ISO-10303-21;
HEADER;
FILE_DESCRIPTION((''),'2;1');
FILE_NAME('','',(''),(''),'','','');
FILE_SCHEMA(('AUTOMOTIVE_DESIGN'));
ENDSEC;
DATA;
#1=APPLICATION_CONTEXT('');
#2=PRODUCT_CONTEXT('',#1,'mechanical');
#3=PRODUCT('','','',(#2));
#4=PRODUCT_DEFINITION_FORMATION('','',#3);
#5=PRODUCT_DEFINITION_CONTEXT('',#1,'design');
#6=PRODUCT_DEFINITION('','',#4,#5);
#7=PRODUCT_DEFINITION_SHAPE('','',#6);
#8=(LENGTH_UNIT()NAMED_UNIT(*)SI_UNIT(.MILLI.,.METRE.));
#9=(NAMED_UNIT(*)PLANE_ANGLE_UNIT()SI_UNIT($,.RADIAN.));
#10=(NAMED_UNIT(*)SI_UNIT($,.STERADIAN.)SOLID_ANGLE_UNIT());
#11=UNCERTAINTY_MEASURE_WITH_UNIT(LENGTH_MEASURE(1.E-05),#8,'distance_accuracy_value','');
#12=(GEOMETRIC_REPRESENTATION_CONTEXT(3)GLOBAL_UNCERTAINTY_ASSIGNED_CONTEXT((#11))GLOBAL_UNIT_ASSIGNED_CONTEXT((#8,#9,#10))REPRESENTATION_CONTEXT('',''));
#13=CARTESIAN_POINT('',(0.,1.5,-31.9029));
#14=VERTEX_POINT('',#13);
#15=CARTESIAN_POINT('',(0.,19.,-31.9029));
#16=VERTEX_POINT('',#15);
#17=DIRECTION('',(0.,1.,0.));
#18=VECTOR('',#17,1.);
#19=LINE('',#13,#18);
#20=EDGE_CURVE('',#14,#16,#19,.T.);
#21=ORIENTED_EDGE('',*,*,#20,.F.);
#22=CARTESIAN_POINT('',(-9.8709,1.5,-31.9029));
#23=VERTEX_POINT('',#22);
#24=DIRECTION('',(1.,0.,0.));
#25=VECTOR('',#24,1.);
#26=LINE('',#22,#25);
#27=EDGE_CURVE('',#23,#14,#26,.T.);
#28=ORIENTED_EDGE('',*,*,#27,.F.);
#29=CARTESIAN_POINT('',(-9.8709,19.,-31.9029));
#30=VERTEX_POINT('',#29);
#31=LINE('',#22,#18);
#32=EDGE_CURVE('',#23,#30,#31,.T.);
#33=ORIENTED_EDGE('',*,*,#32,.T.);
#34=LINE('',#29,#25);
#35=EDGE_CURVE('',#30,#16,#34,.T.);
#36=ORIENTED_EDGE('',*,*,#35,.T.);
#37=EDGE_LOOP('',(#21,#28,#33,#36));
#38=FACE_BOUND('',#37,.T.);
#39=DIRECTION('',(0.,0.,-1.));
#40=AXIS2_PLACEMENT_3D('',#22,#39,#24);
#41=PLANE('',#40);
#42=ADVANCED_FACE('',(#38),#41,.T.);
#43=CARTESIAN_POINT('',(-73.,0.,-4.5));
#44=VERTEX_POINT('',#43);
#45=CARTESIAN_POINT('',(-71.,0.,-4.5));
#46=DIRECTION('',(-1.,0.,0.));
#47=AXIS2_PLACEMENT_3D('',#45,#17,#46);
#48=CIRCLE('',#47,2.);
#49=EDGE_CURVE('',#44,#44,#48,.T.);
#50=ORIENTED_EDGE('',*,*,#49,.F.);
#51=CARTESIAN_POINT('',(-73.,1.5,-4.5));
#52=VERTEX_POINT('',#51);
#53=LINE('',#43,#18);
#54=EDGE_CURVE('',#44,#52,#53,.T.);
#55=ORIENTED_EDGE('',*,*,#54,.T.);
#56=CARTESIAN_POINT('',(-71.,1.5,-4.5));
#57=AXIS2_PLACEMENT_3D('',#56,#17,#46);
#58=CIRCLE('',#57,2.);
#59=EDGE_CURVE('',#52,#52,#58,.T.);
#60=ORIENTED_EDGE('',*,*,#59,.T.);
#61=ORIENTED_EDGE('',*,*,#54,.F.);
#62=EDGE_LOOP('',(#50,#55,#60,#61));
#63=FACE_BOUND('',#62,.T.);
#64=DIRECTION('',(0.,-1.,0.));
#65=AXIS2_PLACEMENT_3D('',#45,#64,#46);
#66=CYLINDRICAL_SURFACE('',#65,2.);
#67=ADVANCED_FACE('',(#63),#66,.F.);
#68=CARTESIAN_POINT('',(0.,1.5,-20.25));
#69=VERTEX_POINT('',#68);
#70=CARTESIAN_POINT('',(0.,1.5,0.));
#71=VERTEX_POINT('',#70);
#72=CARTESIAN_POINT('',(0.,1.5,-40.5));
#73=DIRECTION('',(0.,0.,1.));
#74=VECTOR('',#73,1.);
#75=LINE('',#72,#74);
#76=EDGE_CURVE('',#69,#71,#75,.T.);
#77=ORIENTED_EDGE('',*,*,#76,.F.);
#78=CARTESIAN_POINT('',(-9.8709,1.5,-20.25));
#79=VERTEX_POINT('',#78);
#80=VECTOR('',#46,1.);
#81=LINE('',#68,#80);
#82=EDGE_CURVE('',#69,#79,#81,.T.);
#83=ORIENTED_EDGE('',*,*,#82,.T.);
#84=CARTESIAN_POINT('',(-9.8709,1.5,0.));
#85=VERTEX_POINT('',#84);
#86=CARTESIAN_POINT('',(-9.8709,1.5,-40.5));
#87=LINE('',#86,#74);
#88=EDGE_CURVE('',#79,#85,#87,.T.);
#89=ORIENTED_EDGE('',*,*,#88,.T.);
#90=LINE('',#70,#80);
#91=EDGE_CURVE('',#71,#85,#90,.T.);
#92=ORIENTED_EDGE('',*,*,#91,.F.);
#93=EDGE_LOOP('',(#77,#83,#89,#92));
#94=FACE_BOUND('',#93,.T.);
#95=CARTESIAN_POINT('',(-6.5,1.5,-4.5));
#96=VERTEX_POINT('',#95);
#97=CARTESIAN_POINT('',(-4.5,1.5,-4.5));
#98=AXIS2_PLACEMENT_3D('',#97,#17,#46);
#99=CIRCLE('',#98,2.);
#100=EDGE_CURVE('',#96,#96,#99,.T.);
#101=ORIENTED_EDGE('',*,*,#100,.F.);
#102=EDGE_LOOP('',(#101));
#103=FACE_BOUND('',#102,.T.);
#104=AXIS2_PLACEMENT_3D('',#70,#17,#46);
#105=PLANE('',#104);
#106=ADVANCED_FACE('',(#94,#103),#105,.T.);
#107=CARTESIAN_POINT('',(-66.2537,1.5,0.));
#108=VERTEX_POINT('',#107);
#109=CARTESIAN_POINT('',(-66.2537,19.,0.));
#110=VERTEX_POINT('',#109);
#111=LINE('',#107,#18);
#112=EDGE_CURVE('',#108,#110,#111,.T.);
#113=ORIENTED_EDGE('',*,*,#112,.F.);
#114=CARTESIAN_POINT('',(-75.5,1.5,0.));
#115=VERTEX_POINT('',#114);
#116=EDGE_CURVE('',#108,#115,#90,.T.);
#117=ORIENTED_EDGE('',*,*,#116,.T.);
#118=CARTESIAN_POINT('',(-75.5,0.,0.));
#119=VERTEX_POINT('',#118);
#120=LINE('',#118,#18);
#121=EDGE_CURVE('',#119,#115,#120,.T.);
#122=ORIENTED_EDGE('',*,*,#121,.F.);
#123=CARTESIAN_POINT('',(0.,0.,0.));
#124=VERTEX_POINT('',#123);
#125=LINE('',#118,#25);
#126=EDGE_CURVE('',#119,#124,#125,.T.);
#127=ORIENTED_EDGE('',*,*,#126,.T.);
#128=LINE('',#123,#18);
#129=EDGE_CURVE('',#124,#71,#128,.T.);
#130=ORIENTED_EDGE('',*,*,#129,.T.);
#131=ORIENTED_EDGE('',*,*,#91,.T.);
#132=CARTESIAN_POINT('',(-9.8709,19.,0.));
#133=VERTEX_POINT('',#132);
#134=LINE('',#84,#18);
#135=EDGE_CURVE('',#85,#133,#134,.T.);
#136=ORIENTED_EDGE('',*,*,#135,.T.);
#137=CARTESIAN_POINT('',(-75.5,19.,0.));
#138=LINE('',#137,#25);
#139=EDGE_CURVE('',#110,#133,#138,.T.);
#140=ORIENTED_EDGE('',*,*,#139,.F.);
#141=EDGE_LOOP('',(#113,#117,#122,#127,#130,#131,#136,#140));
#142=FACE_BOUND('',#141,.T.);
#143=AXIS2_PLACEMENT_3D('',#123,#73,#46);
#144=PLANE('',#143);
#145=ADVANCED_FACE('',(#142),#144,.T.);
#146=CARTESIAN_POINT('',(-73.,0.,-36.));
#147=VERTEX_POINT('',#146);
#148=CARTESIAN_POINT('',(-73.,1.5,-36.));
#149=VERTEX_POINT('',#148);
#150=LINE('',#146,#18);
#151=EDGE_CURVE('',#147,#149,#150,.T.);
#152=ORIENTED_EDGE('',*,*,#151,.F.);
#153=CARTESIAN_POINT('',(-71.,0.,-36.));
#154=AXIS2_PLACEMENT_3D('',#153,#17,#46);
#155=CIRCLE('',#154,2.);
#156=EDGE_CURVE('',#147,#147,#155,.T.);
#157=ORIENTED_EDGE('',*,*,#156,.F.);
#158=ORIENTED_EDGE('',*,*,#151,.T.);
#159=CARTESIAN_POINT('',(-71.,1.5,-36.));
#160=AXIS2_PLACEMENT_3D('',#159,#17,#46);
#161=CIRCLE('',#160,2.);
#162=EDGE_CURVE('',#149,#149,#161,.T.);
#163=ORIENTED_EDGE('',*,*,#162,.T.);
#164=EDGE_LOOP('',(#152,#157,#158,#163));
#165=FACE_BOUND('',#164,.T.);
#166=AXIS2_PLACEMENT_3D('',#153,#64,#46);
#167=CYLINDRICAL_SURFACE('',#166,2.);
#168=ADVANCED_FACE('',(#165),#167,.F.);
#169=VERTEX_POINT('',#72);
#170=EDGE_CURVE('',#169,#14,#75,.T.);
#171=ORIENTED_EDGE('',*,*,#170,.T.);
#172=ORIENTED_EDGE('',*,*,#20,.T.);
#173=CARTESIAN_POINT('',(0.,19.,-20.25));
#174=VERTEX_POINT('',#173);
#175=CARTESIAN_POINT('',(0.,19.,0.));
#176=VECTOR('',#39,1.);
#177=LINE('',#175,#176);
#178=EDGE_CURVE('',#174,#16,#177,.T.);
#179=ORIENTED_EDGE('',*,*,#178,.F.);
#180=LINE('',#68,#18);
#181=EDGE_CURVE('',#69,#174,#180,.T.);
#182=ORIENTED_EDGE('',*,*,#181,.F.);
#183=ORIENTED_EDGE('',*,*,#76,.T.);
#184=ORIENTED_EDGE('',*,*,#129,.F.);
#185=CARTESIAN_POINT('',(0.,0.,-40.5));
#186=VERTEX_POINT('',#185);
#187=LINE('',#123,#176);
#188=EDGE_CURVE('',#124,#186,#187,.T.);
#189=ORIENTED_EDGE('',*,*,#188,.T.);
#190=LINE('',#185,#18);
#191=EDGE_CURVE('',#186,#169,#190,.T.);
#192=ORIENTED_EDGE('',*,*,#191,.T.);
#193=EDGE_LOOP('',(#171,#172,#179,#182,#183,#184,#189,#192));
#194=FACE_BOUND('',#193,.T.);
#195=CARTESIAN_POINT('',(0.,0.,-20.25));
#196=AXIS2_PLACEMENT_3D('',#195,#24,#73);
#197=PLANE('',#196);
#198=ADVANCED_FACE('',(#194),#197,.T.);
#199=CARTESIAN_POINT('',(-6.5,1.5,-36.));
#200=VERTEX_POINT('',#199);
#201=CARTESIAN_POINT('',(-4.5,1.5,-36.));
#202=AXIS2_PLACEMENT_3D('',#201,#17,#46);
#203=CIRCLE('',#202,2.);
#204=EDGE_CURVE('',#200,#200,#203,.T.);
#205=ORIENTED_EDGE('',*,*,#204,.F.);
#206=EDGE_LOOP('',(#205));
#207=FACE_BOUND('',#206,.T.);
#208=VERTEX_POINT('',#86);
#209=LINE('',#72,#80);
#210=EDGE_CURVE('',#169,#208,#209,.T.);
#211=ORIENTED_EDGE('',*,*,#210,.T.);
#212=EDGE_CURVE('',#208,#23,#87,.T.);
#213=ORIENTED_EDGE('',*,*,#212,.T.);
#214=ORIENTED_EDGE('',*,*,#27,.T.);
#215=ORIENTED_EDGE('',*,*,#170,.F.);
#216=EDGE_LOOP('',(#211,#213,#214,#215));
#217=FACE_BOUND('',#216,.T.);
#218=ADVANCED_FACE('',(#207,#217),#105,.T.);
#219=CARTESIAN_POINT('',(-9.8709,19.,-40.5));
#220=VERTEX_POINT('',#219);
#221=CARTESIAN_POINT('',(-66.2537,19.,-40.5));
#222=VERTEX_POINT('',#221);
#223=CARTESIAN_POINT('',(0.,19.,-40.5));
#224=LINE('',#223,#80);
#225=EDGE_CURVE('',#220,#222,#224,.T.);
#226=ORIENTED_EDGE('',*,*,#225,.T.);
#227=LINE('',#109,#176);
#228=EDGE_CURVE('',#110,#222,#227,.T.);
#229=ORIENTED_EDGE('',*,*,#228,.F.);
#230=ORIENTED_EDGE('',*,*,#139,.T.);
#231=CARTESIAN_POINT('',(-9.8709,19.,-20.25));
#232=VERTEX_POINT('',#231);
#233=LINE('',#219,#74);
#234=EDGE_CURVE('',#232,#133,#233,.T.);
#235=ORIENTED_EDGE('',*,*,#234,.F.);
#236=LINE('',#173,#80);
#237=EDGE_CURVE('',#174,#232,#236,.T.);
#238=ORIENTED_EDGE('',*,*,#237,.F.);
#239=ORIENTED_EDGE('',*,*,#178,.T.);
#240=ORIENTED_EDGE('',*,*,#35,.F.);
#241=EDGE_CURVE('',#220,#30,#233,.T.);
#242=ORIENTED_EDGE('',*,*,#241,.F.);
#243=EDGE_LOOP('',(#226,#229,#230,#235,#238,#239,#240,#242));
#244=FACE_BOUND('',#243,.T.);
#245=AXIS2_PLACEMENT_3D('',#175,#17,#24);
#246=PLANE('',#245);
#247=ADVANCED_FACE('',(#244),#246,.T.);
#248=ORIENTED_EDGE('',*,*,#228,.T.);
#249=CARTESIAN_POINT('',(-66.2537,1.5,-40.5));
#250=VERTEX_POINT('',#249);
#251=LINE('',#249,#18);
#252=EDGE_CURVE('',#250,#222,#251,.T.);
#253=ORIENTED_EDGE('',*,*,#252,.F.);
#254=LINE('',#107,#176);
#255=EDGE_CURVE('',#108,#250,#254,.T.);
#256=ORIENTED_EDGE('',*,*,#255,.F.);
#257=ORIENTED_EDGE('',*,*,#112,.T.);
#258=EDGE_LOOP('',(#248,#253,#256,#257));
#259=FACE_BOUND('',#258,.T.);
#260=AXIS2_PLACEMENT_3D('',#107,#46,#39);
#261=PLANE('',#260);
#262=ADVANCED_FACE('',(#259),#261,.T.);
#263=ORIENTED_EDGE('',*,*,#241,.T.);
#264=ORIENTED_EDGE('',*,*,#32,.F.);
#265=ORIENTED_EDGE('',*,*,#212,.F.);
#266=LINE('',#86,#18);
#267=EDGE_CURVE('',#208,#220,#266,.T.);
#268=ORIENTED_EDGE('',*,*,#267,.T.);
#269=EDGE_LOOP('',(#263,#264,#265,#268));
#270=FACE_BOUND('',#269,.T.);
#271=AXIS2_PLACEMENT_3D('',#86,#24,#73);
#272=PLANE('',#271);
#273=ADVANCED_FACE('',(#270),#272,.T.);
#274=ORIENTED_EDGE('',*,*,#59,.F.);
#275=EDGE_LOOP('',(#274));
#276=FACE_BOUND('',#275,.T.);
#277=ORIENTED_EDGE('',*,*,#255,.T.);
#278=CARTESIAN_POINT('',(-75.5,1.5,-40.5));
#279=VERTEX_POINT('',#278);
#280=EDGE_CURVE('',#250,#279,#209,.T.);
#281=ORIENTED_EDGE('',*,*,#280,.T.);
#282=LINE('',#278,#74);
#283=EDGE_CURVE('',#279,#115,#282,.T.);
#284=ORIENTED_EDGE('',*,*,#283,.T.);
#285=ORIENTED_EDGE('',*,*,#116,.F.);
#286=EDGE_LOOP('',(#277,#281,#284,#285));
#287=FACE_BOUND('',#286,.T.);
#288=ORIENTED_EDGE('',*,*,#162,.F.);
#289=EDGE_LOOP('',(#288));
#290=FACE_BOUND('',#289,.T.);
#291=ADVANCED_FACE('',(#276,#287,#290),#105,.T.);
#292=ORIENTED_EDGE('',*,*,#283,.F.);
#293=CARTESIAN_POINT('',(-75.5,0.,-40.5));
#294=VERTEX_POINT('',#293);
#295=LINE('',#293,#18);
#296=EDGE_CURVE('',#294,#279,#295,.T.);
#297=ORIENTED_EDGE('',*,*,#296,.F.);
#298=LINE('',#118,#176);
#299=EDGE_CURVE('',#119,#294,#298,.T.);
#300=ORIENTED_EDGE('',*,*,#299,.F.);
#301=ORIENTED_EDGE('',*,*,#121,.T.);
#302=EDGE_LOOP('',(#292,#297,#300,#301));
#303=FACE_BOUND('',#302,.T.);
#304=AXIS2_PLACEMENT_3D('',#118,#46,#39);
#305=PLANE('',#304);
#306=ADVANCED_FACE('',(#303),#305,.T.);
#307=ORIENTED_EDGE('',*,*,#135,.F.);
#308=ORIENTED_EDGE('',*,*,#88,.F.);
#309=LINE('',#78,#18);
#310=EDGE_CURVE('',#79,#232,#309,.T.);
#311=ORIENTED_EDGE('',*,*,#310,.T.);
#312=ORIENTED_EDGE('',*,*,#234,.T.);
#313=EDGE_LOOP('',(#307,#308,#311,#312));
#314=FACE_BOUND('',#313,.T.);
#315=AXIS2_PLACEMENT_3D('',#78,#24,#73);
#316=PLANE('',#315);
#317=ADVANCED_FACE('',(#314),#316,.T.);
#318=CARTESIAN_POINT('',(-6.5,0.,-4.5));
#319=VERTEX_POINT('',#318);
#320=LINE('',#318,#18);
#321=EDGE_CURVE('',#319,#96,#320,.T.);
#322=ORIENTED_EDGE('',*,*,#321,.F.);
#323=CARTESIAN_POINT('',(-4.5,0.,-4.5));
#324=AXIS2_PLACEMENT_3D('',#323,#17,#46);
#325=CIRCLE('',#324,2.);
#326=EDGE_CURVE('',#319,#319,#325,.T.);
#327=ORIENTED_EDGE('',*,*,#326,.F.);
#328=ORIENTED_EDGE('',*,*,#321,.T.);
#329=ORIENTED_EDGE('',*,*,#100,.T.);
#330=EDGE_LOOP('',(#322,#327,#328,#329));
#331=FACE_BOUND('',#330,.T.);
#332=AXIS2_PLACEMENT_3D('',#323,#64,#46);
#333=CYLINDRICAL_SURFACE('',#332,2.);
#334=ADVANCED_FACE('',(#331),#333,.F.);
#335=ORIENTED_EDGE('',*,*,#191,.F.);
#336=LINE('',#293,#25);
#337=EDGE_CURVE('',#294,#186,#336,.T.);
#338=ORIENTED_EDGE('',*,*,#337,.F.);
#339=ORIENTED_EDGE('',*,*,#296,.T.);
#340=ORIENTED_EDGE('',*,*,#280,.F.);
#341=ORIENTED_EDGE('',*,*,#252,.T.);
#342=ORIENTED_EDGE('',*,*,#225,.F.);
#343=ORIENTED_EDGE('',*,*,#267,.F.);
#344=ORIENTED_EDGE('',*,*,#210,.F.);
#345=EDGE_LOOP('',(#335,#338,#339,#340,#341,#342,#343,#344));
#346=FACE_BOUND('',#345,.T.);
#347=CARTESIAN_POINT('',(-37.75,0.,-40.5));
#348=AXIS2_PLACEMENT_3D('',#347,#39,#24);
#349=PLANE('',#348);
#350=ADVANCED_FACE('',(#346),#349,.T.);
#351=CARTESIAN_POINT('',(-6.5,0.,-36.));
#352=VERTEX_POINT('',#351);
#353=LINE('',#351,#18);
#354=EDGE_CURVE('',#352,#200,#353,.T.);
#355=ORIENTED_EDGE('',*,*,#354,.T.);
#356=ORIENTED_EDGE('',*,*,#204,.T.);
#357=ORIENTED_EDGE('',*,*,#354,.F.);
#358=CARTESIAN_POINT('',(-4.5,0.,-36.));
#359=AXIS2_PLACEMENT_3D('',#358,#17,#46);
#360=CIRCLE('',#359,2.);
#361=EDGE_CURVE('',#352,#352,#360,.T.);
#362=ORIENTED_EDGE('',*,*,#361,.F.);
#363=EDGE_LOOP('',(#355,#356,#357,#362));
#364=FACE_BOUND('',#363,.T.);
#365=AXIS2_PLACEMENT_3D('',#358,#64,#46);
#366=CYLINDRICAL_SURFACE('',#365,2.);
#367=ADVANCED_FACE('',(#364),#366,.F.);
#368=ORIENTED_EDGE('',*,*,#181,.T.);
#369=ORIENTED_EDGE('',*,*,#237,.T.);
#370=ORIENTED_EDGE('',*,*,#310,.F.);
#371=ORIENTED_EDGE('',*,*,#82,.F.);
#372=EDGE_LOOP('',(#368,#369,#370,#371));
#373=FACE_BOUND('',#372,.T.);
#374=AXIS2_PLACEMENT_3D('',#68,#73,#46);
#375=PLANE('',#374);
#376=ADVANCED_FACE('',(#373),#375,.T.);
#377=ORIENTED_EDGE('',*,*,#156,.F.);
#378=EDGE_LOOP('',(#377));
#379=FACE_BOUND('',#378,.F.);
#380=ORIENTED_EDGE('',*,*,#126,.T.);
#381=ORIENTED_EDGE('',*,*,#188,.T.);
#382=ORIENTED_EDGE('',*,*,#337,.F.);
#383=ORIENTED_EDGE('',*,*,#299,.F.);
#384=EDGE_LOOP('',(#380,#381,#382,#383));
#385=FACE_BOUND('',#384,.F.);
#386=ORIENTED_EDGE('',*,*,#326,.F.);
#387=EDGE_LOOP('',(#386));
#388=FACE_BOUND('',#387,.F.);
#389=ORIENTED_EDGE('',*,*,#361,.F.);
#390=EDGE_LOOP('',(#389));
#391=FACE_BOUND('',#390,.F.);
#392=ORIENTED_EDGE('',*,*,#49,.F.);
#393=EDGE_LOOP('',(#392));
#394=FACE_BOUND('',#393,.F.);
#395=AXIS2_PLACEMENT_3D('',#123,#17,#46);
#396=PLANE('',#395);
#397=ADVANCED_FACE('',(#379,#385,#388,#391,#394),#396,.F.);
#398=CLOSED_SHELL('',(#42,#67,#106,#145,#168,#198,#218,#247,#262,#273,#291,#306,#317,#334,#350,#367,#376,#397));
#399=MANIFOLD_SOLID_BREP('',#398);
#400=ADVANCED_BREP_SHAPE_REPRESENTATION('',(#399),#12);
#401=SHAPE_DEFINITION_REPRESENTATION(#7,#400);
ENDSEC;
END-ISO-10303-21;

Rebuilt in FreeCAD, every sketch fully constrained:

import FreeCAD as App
import Part
import Sketcher
from FreeCAD import Vector

doc = App.newDocument("Part")
body = doc.addObject("PartDesign::Body", "Body")

# Sketch on XZ plane
sketch1 = doc.addObject("Sketcher::SketchObject", "Sketch")
body.addObject(sketch1)
sketch1.AttachmentSupport = (doc.XZ_Plane, [""])
sketch1.MapMode = "FlatFace"
sketch1.addGeometry([
    Part.LineSegment(Vector(0, 0, 0), Vector(0, -40.5, 0)),  # 0
    Part.LineSegment(Vector(0, -40.5, 0), Vector(-75.5, -40.5, 0)),  # 1
    Part.LineSegment(Vector(-75.5, -40.5, 0), Vector(-75.5, 0, 0)),  # 2
    Part.LineSegment(Vector(-75.5, 0, 0), Vector(0, 0, 0)),  # 3
    Part.Circle(Vector(-4.5, -4.5, 0), Vector(0, 0, 1), 2),  # 4
    Part.Circle(Vector(-71, -4.5, 0), Vector(0, 0, 1), 2),  # 5
    Part.Circle(Vector(-4.5, -36, 0), Vector(0, 0, 1), 2),  # 6
    Part.Circle(Vector(-71, -36, 0), Vector(0, 0, 1), 2),  # 7
], False)
sketch1.addConstraint([
    Sketcher.Constraint("Coincident", 0, 2, 1, 1),
    Sketcher.Constraint("Coincident", 1, 2, 2, 1),
    Sketcher.Constraint("Coincident", 2, 2, 3, 1),
    Sketcher.Constraint("Coincident", 3, 2, 0, 1),
    Sketcher.Constraint("Vertical", 0),
    Sketcher.Constraint("Horizontal", 1),
    Sketcher.Constraint("Vertical", 2),
    Sketcher.Constraint("Horizontal", 3),
    Sketcher.Constraint("Coincident", 3, 2, -1, 1),
    Sketcher.Constraint("Equal", 4, 5),
    Sketcher.Constraint("Equal", 5, 6),
    Sketcher.Constraint("Equal", 6, 7),
    Sketcher.Constraint("Horizontal", 4, 3, 5, 3),
    Sketcher.Constraint("Horizontal", 6, 3, 7, 3),
    Sketcher.Constraint("Vertical", 4, 3, 6, 3),
    Sketcher.Constraint("Vertical", 5, 3, 7, 3),
    Sketcher.Constraint("Diameter", 4, 4.0),
    Sketcher.Constraint("DistanceX", 1, 2, 1, 1, 75.5),
    Sketcher.Constraint("DistanceY", 0, 2, 0, 1, 40.5),
    Sketcher.Constraint("DistanceX", 5, 3, 4, 3, 66.5),
    Sketcher.Constraint("DistanceY", 6, 3, 4, 3, 31.5),
    Sketcher.Constraint("DistanceX", 5, 3, -1, 1, 71.0),
    Sketcher.Constraint("DistanceY", 6, 3, -1, 1, 36.0),
])
pad1 = doc.addObject("PartDesign::Pad", "Pad")
body.addObject(pad1)
pad1.Profile = sketch1
pad1.Length = 1.5
pad1.Reversed = True

# Sketch on XZ plane
sketch2 = doc.addObject("Sketcher::SketchObject", "Sketch001")
body.addObject(sketch2)
sketch2.AttachmentSupport = (doc.XZ_Plane, [""])
sketch2.MapMode = "FlatFace"
sketch2.AttachmentOffset = App.Placement(Vector(0, 0, -1.5), App.Rotation())
sketch2.addGeometry([
    Part.LineSegment(Vector(-9.8709, -31.9029, 0), Vector(-9.8709, -40.5, 0)),  # 0
    Part.LineSegment(Vector(-9.8709, -40.5, 0), Vector(-66.2537, -40.5, 0)),  # 1
    Part.LineSegment(Vector(-66.2537, -40.5, 0), Vector(-66.2537, 0, 0)),  # 2
    Part.LineSegment(Vector(-66.2537, 0, 0), Vector(-9.8709, 0, 0)),  # 3
    Part.LineSegment(Vector(-9.8709, 0, 0), Vector(-9.8709, -20.25, 0)),  # 4
    Part.LineSegment(Vector(-9.8709, -20.25, 0), Vector(0, -20.25, 0)),  # 5
    Part.LineSegment(Vector(0, -20.25, 0), Vector(0, -31.9029, 0)),  # 6
    Part.LineSegment(Vector(0, -31.9029, 0), Vector(-9.8709, -31.9029, 0)),  # 7
], False)
sketch2.addConstraint([
    Sketcher.Constraint("Coincident", 0, 2, 1, 1),
    Sketcher.Constraint("Coincident", 1, 2, 2, 1),
    Sketcher.Constraint("Coincident", 2, 2, 3, 1),
    Sketcher.Constraint("Coincident", 3, 2, 4, 1),
    Sketcher.Constraint("Coincident", 4, 2, 5, 1),
    Sketcher.Constraint("Coincident", 5, 2, 6, 1),
    Sketcher.Constraint("Coincident", 6, 2, 7, 1),
    Sketcher.Constraint("Coincident", 7, 2, 0, 1),
    Sketcher.Constraint("Vertical", 0),
    Sketcher.Constraint("Horizontal", 1),
    Sketcher.Constraint("Vertical", 2),
    Sketcher.Constraint("Horizontal", 3),
    Sketcher.Constraint("Vertical", 4),
    Sketcher.Constraint("Horizontal", 5),
    Sketcher.Constraint("Vertical", 6),
    Sketcher.Constraint("Horizontal", 7),
    Sketcher.Constraint("PointOnObject", 2, 2, -1),
    Sketcher.Constraint("PointOnObject", 5, 2, -2),
    Sketcher.Constraint("Vertical", 0, 2, 3, 2),
    Sketcher.Constraint("DistanceY", 2, 1, 2, 2, 40.5),
    Sketcher.Constraint("DistanceY", 4, 2, 4, 1, 20.25),
    Sketcher.Constraint("DistanceX", 5, 1, 5, 2, 9.871),
    Sketcher.Constraint("DistanceY", 0, 2, 0, 1, 8.597),
    Sketcher.Constraint("DistanceX", 1, 2, 1, 1, 56.3828),
])
pad2 = doc.addObject("PartDesign::Pad", "Pad001")
body.addObject(pad2)
pad2.Profile = sketch2
pad2.Length = 17.5
pad2.Reversed = True

doc.recompute()
